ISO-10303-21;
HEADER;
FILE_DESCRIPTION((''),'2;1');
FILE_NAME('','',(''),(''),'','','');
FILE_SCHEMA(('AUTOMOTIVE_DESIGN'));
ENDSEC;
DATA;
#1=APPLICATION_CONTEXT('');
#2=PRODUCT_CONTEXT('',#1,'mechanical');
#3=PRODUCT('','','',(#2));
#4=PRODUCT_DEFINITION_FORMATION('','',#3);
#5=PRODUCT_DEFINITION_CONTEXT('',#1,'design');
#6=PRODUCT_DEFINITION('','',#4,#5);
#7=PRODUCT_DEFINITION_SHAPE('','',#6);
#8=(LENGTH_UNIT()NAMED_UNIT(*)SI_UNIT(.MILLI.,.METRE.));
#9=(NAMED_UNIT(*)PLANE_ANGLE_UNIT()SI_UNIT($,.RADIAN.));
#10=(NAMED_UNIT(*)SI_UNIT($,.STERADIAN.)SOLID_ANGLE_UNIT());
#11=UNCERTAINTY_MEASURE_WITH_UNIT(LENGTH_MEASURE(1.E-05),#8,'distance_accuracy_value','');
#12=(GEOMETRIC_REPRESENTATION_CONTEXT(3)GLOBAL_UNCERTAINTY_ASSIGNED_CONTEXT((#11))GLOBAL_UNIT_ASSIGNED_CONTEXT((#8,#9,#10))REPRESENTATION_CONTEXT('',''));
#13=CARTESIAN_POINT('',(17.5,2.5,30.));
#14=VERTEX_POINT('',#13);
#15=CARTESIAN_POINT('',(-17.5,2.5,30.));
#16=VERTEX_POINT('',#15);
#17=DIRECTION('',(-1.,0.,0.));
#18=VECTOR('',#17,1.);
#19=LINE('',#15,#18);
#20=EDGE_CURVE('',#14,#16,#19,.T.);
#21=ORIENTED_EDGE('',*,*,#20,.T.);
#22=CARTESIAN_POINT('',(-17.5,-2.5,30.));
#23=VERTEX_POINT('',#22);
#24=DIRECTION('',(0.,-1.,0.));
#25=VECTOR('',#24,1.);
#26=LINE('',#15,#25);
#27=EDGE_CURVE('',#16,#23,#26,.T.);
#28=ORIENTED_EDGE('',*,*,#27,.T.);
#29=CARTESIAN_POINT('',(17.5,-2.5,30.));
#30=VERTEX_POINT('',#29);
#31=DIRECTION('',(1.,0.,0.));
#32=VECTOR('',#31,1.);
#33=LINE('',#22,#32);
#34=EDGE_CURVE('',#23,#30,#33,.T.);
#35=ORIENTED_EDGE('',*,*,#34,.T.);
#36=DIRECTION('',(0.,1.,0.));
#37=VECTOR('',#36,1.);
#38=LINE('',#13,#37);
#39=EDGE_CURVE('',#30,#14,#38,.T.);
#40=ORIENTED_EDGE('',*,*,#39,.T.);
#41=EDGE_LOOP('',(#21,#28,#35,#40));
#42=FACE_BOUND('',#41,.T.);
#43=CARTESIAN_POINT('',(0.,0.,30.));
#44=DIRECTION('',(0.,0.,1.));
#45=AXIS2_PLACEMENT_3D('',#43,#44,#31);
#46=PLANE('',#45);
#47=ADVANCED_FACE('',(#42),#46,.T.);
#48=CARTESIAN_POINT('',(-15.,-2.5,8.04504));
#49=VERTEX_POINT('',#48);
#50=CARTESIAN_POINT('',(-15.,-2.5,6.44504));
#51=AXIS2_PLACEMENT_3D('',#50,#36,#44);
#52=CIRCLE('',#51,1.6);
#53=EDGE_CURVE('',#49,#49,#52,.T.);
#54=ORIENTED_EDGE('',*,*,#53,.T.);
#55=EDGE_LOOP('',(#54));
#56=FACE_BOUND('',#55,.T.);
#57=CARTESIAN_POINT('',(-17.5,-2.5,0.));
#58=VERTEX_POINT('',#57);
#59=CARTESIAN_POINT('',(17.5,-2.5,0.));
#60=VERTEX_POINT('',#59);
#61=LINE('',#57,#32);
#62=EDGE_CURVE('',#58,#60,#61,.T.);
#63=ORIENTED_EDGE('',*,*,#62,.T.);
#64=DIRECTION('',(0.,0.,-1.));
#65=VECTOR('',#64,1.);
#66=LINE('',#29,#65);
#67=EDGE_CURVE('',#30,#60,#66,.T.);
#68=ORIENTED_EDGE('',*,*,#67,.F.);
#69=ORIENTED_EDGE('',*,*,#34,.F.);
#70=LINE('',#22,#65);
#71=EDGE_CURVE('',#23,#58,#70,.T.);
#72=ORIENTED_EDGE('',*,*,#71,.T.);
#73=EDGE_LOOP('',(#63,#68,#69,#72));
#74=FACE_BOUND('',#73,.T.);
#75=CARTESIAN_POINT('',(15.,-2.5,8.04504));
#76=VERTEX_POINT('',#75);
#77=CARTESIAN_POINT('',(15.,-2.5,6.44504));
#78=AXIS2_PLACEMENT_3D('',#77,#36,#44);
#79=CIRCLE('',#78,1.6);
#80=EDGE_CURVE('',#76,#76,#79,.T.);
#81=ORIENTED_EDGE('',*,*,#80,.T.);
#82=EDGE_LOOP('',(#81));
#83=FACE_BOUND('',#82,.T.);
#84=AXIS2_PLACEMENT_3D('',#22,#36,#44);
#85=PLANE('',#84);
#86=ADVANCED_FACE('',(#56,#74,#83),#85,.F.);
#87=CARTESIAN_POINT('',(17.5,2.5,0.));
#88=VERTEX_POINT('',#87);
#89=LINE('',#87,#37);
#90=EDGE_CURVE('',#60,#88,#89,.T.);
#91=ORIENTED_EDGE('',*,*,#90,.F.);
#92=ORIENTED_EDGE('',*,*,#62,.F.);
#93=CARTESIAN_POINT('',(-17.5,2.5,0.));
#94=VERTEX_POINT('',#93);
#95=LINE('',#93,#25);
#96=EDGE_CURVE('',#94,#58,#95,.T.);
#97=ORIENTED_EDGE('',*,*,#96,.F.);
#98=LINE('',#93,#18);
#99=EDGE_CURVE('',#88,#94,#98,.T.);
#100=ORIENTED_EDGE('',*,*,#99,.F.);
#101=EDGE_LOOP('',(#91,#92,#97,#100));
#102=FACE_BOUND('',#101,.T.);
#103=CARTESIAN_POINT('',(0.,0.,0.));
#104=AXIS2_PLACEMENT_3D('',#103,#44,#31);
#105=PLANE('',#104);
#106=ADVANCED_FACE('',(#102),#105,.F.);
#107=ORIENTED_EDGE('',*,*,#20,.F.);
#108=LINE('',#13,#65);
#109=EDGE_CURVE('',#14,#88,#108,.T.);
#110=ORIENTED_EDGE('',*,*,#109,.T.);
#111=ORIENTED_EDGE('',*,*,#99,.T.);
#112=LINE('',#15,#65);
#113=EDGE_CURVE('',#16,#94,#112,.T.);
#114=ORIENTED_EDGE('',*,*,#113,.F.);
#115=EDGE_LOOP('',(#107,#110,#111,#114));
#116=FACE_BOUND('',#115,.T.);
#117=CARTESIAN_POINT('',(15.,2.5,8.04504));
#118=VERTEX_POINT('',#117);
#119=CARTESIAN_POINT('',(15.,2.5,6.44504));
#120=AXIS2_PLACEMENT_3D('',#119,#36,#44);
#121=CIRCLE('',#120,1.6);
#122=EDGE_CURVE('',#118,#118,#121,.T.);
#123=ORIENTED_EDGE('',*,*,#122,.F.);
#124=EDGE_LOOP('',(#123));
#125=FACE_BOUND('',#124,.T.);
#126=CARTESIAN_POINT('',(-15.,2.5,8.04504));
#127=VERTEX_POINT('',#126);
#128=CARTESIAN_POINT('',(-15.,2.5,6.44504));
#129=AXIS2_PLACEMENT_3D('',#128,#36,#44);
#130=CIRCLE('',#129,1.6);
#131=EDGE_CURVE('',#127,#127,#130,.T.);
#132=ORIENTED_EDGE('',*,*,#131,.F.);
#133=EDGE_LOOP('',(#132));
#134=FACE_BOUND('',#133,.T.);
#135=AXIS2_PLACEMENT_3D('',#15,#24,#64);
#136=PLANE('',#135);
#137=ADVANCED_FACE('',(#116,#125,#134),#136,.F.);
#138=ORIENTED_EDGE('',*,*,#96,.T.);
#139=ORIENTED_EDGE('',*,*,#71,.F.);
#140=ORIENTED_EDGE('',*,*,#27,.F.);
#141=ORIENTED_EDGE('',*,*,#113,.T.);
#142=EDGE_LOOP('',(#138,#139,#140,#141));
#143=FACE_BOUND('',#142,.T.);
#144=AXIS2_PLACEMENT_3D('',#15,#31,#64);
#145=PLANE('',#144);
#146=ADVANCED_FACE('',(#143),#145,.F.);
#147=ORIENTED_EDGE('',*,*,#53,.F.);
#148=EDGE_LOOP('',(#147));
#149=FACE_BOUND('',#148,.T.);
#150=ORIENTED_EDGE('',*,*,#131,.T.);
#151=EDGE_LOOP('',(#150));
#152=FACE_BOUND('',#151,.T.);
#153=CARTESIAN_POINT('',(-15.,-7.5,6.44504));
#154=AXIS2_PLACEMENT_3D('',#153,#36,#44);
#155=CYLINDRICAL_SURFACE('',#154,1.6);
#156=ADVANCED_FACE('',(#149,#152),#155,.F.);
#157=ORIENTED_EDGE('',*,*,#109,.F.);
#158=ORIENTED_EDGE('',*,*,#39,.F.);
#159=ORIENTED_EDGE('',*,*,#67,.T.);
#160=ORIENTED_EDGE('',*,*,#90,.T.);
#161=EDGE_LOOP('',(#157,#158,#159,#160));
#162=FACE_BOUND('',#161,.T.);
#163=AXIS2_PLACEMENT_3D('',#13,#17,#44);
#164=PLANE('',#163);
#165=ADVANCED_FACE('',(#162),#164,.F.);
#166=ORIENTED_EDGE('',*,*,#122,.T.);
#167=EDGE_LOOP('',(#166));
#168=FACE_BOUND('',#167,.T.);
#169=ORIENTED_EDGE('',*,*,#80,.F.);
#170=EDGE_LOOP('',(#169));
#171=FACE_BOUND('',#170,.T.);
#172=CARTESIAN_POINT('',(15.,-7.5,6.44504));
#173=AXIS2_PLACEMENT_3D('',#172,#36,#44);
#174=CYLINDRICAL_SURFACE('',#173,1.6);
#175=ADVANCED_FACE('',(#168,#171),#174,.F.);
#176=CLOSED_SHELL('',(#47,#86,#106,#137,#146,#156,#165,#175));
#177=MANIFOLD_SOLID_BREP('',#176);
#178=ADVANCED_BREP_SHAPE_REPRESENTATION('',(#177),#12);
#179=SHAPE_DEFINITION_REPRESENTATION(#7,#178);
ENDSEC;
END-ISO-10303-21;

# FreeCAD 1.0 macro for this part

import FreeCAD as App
import Part
import Sketcher
Q = App.Units.Quantity


def add_polygon(sketch, points):
    """Adds a closed chain of lines whose ends are joined by coincident constraints."""
    first, n = sketch.GeometryCount, len(points)
    for a, b in zip(points, points[1:] + points[:1]):
        sketch.addGeometry(Part.LineSegment(App.Vector(*a, 0), App.Vector(*b, 0)), False)
    for i in range(n):
        sketch.addConstraint(Sketcher.Constraint("Coincident", first + i, 2, first + (i + 1) % n, 1))

doc = App.newDocument("Part")
body = doc.addObject("PartDesign::Body", "Body")

# Sketch on XY plane
sketch1 = body.newObject("Sketcher::SketchObject", "Sketch")
sketch1.AttachmentSupport = (doc.getObject("XY_Plane"), [""])
sketch1.MapMode = "FlatFace"
add_polygon(sketch1, [(-18, 2), (-18, -2), (18, -2), (18, 2)])  # lines 0-3
sketch1.addConstraint([
    Sketcher.Constraint("Vertical", 0),
    Sketcher.Constraint("Horizontal", 1),
    Sketcher.Constraint("Vertical", 2),
    Sketcher.Constraint("Horizontal", 3),
    Sketcher.Constraint("Symmetric", 0, 2, 2, 2, -1, 1),
    Sketcher.Constraint("DistanceX", 1, 1, 1, 2, Q("35 mm")),
    Sketcher.Constraint("DistanceY", 0, 2, 0, 1, Q("5 mm")),
])
pad1 = body.newObject("PartDesign::Pad", "Pad")
pad1.Profile = sketch1
pad1.Length = 30

# Sketch on XZ plane
sketch2 = body.newObject("Sketcher::SketchObject", "Sketch001")
sketch2.AttachmentSupport = (doc.getObject("XZ_Plane"), [""])
sketch2.MapMode = "FlatFace"
sketch2.AttachmentOffset = App.Placement(App.Vector(0, 0, -2.5), App.Rotation())
sketch2.addGeometry([
    Part.Circle(App.Vector(15, 6.4, 0), App.Vector(0, 0, 1), 1.6),
    Part.Circle(App.Vector(-15, 6.4, 0), App.Vector(0, 0, 1), 1.6),
], False)
sketch2.addConstraint([
    Sketcher.Constraint("Equal", 0, 1),
    Sketcher.Constraint("Symmetric", 0, 3, 1, 3, -2),
    Sketcher.Constraint("Diameter", 0, Q("3.2 mm")),
    Sketcher.Constraint("DistanceX", -1, 1, 0, 3, Q("15 mm")),
    Sketcher.Constraint("DistanceY", -1, 1, 0, 3, Q("6.44504 mm")),
])
pocket1 = body.newObject("PartDesign::Pocket", "Pocket")
pocket1.Profile = sketch2
pocket1.Length = 10
pocket1.Reversed = True

doc.recompute()
